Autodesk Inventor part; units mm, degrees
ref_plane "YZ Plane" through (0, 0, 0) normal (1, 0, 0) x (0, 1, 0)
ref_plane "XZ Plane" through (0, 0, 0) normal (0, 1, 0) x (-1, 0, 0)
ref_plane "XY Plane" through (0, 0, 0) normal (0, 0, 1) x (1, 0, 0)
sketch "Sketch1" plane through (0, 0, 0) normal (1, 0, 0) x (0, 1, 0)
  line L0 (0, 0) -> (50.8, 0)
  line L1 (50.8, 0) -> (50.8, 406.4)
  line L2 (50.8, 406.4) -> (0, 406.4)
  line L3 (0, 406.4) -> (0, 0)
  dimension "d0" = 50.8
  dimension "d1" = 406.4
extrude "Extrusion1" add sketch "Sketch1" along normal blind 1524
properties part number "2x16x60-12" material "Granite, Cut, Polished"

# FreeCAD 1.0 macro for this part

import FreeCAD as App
import Part
import Sketcher

V = App.Vector
Q = App.Units.Quantity

doc = App.newDocument("Part")
body = doc.addObject("PartDesign::Body", "Body")

sketch1 = body.newObject("Sketcher::SketchObject", "Sketch")
sketch1.AttachmentSupport = (doc.getObject("YZ_Plane"), [""])
sketch1.MapMode = "FlatFace"
sketch1.addGeometry([
    Part.LineSegment(V(0, 406, 0), V(0, 0, 0)),
    Part.LineSegment(V(0, 0, 0), V(51, 0, 0)),
    Part.LineSegment(V(51, 0, 0), V(51, 406, 0)),
    Part.LineSegment(V(51, 406, 0), V(0, 406, 0)),
], False)
sketch1.addConstraint([
    Sketcher.Constraint("Coincident", 0, 2, 1, 1),
    Sketcher.Constraint("Coincident", 1, 2, 2, 1),
    Sketcher.Constraint("Coincident", 2, 2, 3, 1),
    Sketcher.Constraint("Coincident", 3, 2, 0, 1),
    Sketcher.Constraint("Vertical", 0),
    Sketcher.Constraint("Horizontal", 1),
    Sketcher.Constraint("Vertical", 2),
    Sketcher.Constraint("Horizontal", 3),
    Sketcher.Constraint("Coincident", 0, 2, -1, 1),
    Sketcher.Constraint("DistanceX", 1, 1, 1, 2, Q("2 in")),
    Sketcher.Constraint("DistanceY", 0, 2, 0, 1, Q("16 in")),
])
pad1 = body.newObject("PartDesign::Pad", "Pad")
pad1.Profile = sketch1
pad1.Length = Q("60 in")

doc.recompute()
